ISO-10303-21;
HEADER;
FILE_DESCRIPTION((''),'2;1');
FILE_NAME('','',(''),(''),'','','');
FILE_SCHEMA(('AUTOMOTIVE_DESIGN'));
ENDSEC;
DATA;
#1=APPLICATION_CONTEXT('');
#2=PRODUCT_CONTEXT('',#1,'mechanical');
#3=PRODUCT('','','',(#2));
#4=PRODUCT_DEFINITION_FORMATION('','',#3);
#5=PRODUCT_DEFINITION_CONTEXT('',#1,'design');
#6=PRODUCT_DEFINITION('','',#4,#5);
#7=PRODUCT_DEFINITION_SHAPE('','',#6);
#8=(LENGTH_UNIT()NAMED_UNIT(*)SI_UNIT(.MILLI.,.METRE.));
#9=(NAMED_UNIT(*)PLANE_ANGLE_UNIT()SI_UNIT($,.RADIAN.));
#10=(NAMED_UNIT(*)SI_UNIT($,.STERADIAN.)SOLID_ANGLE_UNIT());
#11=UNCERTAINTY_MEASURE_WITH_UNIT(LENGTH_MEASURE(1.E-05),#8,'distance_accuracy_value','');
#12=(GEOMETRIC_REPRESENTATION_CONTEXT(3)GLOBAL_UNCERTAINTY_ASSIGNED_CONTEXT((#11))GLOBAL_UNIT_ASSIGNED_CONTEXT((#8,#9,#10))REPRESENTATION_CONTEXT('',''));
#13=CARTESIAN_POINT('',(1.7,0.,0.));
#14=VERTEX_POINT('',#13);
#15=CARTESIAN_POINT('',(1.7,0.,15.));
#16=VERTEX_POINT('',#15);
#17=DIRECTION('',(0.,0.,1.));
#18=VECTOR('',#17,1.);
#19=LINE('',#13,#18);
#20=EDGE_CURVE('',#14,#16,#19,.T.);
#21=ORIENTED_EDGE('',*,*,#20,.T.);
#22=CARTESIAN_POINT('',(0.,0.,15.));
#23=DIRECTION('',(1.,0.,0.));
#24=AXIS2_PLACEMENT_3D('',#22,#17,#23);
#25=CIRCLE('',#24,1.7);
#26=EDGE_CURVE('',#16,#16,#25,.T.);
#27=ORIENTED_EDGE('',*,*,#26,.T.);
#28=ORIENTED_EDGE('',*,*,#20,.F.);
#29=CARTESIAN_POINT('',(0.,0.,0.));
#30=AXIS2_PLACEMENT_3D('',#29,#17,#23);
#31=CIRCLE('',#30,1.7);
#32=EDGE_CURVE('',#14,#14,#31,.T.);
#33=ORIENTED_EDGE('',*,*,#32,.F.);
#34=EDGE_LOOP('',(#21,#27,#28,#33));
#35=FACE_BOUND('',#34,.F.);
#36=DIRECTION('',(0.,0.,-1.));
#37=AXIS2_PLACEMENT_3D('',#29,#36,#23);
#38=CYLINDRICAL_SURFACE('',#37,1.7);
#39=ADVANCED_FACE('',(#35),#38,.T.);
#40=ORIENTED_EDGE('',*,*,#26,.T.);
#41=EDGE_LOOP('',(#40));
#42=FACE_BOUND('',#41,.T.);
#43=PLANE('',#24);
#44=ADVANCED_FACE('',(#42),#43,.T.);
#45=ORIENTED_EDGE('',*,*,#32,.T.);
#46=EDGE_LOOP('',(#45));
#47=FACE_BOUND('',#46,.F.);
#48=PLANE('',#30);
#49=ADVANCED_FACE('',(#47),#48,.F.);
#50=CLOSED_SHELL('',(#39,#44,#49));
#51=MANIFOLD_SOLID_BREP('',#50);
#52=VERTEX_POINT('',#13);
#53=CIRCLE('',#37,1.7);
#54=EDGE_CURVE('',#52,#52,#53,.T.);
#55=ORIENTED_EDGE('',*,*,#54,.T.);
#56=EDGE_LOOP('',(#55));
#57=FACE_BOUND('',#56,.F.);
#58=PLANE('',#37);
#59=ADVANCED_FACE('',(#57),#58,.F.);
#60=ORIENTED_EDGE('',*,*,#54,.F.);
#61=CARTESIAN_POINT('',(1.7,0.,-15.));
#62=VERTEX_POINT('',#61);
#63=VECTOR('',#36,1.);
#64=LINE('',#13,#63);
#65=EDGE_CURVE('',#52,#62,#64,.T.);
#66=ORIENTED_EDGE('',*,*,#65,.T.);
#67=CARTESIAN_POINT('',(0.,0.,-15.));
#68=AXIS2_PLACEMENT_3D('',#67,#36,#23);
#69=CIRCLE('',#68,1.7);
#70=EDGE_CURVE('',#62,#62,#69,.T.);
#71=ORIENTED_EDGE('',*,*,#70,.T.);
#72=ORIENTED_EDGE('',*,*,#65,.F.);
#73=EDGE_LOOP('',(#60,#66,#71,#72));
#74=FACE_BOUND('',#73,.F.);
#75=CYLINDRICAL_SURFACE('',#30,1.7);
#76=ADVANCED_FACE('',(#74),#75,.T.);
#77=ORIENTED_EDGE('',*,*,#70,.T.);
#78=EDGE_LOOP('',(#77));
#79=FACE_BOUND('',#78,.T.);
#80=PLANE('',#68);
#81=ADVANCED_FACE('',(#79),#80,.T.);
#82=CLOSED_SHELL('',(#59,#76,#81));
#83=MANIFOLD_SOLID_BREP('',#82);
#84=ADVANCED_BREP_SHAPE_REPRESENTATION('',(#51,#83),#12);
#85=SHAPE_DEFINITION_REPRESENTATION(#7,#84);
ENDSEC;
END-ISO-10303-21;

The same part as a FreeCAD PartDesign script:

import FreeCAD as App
import Part
import Sketcher

V = App.Vector
Q = App.Units.Quantity

doc = App.newDocument("Part")
body = doc.addObject("PartDesign::Body", "Body")

# Sketch on XY plane
sketch1 = body.newObject("Sketcher::SketchObject", "Sketch")
sketch1.AttachmentSupport = (doc.getObject("XY_Plane"), [""])
sketch1.MapMode = "FlatFace"
sketch1.addGeometry(Part.Circle(V(0, 0, 0), V(0, 0, 1), 1.7), False)
sketch1.addConstraint(Sketcher.Constraint("Coincident", 0, 3, -1, 1))
sketch1.addConstraint(Sketcher.Constraint("Diameter", 0, Q("3.4 mm")))
pad1 = body.newObject("PartDesign::Pad", "Pad")
pad1.Profile = sketch1
pad1.Length = 15
body2 = doc.addObject("PartDesign::Body", "Body001")

# Sketch on XY plane
sketch2 = body2.newObject("Sketcher::SketchObject", "Sketch001")
sketch2.AttachmentSupport = (doc.getObject("XY_Plane001"), [""])
sketch2.MapMode = "FlatFace"
sketch2.addGeometry(Part.Circle(V(0, 0, 0), V(0, 0, 1), 1.7), False)
sketch2.addConstraint(Sketcher.Constraint("Coincident", 0, 3, -1, 1))
sketch2.addConstraint(Sketcher.Constraint("Diameter", 0, Q("3.4 mm")))
pad2 = body2.newObject("PartDesign::Pad", "Pad001")
pad2.Profile = sketch2
pad2.Length = 15
pad2.Reversed = True

doc.recompute()
